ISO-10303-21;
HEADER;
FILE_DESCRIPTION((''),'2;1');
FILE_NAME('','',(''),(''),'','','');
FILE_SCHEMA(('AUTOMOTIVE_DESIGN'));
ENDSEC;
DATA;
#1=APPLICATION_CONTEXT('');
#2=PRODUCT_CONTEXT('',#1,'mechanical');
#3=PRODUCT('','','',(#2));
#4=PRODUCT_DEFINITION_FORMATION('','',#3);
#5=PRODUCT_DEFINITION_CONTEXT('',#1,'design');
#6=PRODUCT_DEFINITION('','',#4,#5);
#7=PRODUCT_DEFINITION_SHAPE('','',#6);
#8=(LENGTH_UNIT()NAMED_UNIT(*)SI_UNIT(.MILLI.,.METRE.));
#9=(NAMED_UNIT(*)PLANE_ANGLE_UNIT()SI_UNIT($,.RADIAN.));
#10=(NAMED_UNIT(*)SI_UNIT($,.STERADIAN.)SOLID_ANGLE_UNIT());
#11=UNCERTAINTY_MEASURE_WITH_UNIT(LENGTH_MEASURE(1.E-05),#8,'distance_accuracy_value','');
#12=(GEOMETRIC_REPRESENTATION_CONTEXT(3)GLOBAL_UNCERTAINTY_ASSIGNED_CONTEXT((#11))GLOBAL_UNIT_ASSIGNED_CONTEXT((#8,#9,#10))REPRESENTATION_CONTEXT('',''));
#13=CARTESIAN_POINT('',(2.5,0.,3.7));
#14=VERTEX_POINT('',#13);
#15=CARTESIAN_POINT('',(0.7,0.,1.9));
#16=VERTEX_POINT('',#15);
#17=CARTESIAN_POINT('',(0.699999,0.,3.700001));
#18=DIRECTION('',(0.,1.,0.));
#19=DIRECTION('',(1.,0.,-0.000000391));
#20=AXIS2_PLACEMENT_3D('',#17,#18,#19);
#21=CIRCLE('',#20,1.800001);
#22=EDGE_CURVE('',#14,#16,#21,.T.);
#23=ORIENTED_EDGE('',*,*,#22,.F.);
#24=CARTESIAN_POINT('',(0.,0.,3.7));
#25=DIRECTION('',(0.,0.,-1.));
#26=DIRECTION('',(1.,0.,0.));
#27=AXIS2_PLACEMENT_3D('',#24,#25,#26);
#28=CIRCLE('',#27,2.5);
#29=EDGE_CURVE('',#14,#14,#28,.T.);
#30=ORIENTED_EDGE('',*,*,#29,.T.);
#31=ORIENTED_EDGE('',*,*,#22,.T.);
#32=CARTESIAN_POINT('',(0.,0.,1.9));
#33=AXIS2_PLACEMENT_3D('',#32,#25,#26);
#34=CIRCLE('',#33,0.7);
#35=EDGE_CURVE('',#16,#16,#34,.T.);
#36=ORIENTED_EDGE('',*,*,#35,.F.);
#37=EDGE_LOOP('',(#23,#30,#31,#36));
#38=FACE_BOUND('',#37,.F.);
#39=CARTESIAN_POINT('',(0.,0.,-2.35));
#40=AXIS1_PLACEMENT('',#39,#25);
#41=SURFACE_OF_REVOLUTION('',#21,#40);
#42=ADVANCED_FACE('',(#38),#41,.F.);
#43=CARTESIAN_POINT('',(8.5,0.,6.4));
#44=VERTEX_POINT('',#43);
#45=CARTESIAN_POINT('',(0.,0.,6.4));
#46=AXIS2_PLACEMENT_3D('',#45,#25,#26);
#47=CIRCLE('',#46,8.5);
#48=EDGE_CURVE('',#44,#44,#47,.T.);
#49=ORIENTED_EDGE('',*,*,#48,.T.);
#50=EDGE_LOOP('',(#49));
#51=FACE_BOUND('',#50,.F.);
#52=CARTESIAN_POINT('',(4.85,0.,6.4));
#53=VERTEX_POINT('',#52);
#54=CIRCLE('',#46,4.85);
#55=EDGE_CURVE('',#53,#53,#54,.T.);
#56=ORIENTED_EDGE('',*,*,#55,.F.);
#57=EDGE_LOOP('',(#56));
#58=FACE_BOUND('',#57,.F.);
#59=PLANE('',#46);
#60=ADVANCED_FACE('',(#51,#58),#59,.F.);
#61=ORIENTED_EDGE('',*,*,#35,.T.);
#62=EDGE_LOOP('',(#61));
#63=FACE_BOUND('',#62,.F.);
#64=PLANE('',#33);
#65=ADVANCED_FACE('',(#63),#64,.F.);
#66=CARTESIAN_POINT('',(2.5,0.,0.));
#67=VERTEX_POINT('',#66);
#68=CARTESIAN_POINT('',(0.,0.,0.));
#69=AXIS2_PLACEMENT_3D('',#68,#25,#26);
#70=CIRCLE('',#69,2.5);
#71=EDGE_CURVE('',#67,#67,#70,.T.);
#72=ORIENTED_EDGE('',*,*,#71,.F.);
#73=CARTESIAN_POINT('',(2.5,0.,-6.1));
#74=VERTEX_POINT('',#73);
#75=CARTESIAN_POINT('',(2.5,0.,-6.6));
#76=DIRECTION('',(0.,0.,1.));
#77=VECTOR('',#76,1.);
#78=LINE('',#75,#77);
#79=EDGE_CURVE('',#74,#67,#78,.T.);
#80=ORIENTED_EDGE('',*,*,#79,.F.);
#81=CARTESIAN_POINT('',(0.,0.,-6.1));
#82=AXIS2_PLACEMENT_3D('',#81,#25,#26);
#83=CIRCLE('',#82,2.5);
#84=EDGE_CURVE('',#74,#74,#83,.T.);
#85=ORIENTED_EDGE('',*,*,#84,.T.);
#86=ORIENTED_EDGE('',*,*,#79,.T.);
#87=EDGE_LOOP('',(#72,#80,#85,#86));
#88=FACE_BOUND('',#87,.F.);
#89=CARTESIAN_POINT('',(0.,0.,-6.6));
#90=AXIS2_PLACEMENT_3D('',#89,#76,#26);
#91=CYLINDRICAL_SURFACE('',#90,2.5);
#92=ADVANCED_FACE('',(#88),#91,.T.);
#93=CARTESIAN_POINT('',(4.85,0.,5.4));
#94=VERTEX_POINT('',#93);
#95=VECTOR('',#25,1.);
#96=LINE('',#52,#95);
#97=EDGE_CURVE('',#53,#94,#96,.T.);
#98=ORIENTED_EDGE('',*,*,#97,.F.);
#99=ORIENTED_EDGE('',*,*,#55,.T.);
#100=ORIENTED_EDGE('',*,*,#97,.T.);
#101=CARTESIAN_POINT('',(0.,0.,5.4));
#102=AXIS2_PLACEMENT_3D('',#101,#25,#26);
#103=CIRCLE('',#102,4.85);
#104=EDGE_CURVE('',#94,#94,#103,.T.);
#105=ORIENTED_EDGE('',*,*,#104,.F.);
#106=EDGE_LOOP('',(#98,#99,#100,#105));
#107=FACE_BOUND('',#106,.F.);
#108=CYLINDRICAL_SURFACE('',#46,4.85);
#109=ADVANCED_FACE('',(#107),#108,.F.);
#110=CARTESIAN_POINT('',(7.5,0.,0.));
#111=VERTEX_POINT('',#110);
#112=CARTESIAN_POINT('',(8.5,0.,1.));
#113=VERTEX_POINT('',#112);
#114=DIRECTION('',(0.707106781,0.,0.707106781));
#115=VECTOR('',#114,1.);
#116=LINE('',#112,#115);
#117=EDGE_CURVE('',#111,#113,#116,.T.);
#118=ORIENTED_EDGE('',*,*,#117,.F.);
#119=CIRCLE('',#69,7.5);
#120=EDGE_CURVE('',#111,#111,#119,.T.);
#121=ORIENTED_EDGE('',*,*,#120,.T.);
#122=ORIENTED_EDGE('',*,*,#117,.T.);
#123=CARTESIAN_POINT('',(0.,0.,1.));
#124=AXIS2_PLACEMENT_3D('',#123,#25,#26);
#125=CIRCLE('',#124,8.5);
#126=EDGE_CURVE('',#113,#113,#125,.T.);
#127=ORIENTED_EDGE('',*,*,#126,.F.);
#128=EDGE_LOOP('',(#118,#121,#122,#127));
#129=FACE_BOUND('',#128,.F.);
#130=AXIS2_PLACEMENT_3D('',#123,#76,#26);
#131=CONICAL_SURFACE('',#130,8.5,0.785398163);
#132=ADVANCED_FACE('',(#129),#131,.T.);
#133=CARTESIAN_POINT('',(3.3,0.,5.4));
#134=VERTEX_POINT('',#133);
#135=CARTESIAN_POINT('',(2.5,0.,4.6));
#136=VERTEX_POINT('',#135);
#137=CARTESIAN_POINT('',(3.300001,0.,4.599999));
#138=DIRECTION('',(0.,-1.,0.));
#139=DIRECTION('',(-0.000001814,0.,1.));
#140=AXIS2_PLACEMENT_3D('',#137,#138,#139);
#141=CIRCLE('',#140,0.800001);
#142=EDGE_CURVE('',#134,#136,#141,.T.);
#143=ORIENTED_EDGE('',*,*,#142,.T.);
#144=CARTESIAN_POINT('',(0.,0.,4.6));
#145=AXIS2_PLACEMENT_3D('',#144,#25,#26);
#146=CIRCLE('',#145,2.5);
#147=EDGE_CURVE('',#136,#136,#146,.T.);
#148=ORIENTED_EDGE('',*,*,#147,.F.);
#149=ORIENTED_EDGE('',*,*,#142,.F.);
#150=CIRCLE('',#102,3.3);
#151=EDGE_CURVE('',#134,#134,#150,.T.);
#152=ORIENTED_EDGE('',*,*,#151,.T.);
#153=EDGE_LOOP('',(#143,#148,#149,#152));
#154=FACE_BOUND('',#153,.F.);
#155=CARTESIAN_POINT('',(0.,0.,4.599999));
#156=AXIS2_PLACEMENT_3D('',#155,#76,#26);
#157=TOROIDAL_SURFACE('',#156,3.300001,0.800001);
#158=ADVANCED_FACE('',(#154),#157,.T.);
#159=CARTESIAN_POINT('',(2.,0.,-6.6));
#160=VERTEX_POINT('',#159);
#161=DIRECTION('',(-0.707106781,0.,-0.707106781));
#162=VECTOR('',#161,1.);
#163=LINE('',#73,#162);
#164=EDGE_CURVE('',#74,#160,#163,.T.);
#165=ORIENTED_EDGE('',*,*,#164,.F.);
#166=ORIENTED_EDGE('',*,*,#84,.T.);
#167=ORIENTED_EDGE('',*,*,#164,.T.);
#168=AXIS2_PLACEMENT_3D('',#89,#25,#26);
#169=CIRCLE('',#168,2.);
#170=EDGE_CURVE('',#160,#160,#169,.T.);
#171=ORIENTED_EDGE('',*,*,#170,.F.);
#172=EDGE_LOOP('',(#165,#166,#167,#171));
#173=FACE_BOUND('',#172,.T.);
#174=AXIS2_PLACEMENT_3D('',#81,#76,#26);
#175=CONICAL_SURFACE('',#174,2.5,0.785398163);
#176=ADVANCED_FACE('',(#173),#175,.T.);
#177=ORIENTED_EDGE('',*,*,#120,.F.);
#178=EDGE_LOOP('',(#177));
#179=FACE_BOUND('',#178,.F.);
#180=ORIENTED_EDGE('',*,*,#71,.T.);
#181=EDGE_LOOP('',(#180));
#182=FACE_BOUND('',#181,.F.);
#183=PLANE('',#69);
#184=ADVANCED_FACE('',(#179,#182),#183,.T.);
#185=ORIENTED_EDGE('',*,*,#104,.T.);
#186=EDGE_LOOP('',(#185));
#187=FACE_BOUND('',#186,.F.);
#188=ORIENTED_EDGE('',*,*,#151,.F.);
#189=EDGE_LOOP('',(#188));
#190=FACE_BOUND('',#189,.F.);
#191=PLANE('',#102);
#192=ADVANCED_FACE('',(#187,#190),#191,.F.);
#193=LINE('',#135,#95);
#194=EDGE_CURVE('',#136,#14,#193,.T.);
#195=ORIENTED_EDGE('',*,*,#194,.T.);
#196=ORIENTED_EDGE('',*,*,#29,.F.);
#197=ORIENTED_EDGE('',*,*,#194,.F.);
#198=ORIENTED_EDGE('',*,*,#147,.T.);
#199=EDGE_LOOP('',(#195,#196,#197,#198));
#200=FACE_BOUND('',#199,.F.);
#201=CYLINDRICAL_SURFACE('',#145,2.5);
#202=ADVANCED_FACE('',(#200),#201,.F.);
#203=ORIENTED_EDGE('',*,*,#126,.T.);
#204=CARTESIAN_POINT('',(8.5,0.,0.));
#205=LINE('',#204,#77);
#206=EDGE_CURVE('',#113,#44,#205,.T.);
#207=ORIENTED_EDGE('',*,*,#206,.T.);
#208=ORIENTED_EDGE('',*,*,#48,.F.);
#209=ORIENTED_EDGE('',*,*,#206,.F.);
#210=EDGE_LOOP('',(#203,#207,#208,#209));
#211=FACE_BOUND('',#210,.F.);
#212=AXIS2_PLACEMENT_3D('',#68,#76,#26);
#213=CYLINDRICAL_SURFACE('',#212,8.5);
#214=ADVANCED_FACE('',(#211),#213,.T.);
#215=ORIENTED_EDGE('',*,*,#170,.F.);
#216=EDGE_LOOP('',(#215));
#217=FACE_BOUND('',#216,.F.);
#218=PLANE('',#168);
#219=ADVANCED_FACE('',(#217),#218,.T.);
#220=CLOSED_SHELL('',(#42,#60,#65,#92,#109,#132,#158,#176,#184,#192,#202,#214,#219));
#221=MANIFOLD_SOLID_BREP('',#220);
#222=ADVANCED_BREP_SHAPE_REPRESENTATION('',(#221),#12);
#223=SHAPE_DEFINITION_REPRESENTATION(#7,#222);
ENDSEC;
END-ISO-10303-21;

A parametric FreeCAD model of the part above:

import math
import FreeCAD as App
import Part
import Sketcher
from FreeCAD import Vector


def edges_at(feature, points):
    """Names of the edges that pass closest to the given points."""
    edges = feature.Shape.Edges
    near = lambda p: min(range(len(edges)), key=lambda i: edges[i].distToShape(Part.Vertex(*p))[0])
    return sorted({f"Edge{near(p) + 1}" for p in points})

doc = App.newDocument("Part")
body = doc.addObject("PartDesign::Body", "Body")

# Sketch on XZ plane
sketch1 = body.newObject("Sketcher::SketchObject", "Sketch")
sketch1.AttachmentSupport = (doc.getObject("XZ_Plane"), [""])
sketch1.MapMode = "FlatFace"
sketch1.addGeometry([
    Part.LineSegment(Vector(4.8, 5.4, 0), Vector(3.3, 5.4, 0)),  # 0
    Part.ArcOfCircle(Part.Circle(Vector(3.3, 4.6, 0), Vector(0, 0, 1), 0.8), math.radians(90), math.radians(180)),  # 1
    Part.LineSegment(Vector(2.5, 4.6, 0), Vector(2.5, 3.7, 0)),  # 2
    Part.ArcOfCircle(Part.Circle(Vector(0.7, 3.7, 0), Vector(0, 0, 1), 1.8), math.radians(-90), math.radians(0)),  # 3
    Part.LineSegment(Vector(0.7, 1.9, 0), Vector(0, 1.9, 0)),  # 4
    Part.LineSegment(Vector(0, 1.9, 0), Vector(0, -6.6, 0)),  # 5
    Part.LineSegment(Vector(0, -6.6, 0), Vector(2.5, -6.6, 0)),  # 6
    Part.LineSegment(Vector(2.5, -6.6, 0), Vector(2.5, 0, 0)),  # 7
    Part.LineSegment(Vector(2.5, 0, 0), Vector(8.5, 0, 0)),  # 8
    Part.LineSegment(Vector(8.5, 0, 0), Vector(8.5, 6.4, 0)),  # 9
    Part.LineSegment(Vector(8.5, 6.4, 0), Vector(4.8, 6.4, 0)),  # 10
    Part.LineSegment(Vector(4.8, 6.4, 0), Vector(4.8, 5.4, 0)),  # 11
], False)
sketch1.addConstraint([
    Sketcher.Constraint("Tangent", 0, 2, 1, 1),
    Sketcher.Constraint("Tangent", 1, 2, 2, 1),
    Sketcher.Constraint("Tangent", 2, 2, 3, 2),
    Sketcher.Constraint("Tangent", 3, 1, 4, 1),
    Sketcher.Constraint("Coincident", 4, 2, 5, 1),
    Sketcher.Constraint("Coincident", 5, 2, 6, 1),
    Sketcher.Constraint("Coincident", 6, 2, 7, 1),
    Sketcher.Constraint("Coincident", 7, 2, 8, 1),
    Sketcher.Constraint("Coincident", 8, 2, 9, 1),
    Sketcher.Constraint("Coincident", 9, 2, 10, 1),
    Sketcher.Constraint("Coincident", 10, 2, 11, 1),
    Sketcher.Constraint("Coincident", 11, 2, 0, 1),
    Sketcher.Constraint("Horizontal", 0),
    Sketcher.Constraint("Vertical", 2),
    Sketcher.Constraint("Horizontal", 4),
    Sketcher.Constraint("Vertical", 5),
    Sketcher.Constraint("Horizontal", 6),
    Sketcher.Constraint("Vertical", 7),
    Sketcher.Constraint("Horizontal", 8),
    Sketcher.Constraint("Vertical", 9),
    Sketcher.Constraint("Horizontal", 10),
    Sketcher.Constraint("Vertical", 11),
    Sketcher.Constraint("PointOnObject", 4, 2, -2),
    Sketcher.Constraint("PointOnObject", 7, 2, -1),
    Sketcher.Constraint("Vertical", 2, 2, 6, 2),
    Sketcher.Constraint("Radius", 1, 0.800001),
    Sketcher.Constraint("Radius", 3, 1.800001),
    Sketcher.Constraint("DistanceX", 8, 1, 8, 2, 6.0),
    Sketcher.Constraint("DistanceY", 11, 2, 11, 1, 1.0),
    Sketcher.Constraint("DistanceX", 4, 2, 4, 1, 0.7),
    Sketcher.Constraint("DistanceY", 2, 2, 2, 1, 0.9),
    Sketcher.Constraint("DistanceY", 5, 2, 5, 1, 8.5),
    Sketcher.Constraint("DistanceY", 7, 1, 7, 2, 6.6),
    Sketcher.Constraint("DistanceX", 0, 2, 0, 1, 1.55),
])
revolution = body.newObject("PartDesign::Revolution", "Revolution")
revolution.Profile = sketch1
revolution.ReferenceAxis = (sketch1, ["V_Axis"])
revolution.Angle = 360
doc.recompute()

chamfer = body.newObject("PartDesign::Chamfer", "Chamfer")
chamfer.Base = (revolution, edges_at(revolution, [(-8.5, 0, 0)]))
chamfer.Size = 1
doc.recompute()

chamfer2 = body.newObject("PartDesign::Chamfer", "Chamfer001")
chamfer2.Base = (chamfer, edges_at(chamfer, [(-2.5, 0, -6.6)]))
chamfer2.Size = 0.5

doc.recompute()
